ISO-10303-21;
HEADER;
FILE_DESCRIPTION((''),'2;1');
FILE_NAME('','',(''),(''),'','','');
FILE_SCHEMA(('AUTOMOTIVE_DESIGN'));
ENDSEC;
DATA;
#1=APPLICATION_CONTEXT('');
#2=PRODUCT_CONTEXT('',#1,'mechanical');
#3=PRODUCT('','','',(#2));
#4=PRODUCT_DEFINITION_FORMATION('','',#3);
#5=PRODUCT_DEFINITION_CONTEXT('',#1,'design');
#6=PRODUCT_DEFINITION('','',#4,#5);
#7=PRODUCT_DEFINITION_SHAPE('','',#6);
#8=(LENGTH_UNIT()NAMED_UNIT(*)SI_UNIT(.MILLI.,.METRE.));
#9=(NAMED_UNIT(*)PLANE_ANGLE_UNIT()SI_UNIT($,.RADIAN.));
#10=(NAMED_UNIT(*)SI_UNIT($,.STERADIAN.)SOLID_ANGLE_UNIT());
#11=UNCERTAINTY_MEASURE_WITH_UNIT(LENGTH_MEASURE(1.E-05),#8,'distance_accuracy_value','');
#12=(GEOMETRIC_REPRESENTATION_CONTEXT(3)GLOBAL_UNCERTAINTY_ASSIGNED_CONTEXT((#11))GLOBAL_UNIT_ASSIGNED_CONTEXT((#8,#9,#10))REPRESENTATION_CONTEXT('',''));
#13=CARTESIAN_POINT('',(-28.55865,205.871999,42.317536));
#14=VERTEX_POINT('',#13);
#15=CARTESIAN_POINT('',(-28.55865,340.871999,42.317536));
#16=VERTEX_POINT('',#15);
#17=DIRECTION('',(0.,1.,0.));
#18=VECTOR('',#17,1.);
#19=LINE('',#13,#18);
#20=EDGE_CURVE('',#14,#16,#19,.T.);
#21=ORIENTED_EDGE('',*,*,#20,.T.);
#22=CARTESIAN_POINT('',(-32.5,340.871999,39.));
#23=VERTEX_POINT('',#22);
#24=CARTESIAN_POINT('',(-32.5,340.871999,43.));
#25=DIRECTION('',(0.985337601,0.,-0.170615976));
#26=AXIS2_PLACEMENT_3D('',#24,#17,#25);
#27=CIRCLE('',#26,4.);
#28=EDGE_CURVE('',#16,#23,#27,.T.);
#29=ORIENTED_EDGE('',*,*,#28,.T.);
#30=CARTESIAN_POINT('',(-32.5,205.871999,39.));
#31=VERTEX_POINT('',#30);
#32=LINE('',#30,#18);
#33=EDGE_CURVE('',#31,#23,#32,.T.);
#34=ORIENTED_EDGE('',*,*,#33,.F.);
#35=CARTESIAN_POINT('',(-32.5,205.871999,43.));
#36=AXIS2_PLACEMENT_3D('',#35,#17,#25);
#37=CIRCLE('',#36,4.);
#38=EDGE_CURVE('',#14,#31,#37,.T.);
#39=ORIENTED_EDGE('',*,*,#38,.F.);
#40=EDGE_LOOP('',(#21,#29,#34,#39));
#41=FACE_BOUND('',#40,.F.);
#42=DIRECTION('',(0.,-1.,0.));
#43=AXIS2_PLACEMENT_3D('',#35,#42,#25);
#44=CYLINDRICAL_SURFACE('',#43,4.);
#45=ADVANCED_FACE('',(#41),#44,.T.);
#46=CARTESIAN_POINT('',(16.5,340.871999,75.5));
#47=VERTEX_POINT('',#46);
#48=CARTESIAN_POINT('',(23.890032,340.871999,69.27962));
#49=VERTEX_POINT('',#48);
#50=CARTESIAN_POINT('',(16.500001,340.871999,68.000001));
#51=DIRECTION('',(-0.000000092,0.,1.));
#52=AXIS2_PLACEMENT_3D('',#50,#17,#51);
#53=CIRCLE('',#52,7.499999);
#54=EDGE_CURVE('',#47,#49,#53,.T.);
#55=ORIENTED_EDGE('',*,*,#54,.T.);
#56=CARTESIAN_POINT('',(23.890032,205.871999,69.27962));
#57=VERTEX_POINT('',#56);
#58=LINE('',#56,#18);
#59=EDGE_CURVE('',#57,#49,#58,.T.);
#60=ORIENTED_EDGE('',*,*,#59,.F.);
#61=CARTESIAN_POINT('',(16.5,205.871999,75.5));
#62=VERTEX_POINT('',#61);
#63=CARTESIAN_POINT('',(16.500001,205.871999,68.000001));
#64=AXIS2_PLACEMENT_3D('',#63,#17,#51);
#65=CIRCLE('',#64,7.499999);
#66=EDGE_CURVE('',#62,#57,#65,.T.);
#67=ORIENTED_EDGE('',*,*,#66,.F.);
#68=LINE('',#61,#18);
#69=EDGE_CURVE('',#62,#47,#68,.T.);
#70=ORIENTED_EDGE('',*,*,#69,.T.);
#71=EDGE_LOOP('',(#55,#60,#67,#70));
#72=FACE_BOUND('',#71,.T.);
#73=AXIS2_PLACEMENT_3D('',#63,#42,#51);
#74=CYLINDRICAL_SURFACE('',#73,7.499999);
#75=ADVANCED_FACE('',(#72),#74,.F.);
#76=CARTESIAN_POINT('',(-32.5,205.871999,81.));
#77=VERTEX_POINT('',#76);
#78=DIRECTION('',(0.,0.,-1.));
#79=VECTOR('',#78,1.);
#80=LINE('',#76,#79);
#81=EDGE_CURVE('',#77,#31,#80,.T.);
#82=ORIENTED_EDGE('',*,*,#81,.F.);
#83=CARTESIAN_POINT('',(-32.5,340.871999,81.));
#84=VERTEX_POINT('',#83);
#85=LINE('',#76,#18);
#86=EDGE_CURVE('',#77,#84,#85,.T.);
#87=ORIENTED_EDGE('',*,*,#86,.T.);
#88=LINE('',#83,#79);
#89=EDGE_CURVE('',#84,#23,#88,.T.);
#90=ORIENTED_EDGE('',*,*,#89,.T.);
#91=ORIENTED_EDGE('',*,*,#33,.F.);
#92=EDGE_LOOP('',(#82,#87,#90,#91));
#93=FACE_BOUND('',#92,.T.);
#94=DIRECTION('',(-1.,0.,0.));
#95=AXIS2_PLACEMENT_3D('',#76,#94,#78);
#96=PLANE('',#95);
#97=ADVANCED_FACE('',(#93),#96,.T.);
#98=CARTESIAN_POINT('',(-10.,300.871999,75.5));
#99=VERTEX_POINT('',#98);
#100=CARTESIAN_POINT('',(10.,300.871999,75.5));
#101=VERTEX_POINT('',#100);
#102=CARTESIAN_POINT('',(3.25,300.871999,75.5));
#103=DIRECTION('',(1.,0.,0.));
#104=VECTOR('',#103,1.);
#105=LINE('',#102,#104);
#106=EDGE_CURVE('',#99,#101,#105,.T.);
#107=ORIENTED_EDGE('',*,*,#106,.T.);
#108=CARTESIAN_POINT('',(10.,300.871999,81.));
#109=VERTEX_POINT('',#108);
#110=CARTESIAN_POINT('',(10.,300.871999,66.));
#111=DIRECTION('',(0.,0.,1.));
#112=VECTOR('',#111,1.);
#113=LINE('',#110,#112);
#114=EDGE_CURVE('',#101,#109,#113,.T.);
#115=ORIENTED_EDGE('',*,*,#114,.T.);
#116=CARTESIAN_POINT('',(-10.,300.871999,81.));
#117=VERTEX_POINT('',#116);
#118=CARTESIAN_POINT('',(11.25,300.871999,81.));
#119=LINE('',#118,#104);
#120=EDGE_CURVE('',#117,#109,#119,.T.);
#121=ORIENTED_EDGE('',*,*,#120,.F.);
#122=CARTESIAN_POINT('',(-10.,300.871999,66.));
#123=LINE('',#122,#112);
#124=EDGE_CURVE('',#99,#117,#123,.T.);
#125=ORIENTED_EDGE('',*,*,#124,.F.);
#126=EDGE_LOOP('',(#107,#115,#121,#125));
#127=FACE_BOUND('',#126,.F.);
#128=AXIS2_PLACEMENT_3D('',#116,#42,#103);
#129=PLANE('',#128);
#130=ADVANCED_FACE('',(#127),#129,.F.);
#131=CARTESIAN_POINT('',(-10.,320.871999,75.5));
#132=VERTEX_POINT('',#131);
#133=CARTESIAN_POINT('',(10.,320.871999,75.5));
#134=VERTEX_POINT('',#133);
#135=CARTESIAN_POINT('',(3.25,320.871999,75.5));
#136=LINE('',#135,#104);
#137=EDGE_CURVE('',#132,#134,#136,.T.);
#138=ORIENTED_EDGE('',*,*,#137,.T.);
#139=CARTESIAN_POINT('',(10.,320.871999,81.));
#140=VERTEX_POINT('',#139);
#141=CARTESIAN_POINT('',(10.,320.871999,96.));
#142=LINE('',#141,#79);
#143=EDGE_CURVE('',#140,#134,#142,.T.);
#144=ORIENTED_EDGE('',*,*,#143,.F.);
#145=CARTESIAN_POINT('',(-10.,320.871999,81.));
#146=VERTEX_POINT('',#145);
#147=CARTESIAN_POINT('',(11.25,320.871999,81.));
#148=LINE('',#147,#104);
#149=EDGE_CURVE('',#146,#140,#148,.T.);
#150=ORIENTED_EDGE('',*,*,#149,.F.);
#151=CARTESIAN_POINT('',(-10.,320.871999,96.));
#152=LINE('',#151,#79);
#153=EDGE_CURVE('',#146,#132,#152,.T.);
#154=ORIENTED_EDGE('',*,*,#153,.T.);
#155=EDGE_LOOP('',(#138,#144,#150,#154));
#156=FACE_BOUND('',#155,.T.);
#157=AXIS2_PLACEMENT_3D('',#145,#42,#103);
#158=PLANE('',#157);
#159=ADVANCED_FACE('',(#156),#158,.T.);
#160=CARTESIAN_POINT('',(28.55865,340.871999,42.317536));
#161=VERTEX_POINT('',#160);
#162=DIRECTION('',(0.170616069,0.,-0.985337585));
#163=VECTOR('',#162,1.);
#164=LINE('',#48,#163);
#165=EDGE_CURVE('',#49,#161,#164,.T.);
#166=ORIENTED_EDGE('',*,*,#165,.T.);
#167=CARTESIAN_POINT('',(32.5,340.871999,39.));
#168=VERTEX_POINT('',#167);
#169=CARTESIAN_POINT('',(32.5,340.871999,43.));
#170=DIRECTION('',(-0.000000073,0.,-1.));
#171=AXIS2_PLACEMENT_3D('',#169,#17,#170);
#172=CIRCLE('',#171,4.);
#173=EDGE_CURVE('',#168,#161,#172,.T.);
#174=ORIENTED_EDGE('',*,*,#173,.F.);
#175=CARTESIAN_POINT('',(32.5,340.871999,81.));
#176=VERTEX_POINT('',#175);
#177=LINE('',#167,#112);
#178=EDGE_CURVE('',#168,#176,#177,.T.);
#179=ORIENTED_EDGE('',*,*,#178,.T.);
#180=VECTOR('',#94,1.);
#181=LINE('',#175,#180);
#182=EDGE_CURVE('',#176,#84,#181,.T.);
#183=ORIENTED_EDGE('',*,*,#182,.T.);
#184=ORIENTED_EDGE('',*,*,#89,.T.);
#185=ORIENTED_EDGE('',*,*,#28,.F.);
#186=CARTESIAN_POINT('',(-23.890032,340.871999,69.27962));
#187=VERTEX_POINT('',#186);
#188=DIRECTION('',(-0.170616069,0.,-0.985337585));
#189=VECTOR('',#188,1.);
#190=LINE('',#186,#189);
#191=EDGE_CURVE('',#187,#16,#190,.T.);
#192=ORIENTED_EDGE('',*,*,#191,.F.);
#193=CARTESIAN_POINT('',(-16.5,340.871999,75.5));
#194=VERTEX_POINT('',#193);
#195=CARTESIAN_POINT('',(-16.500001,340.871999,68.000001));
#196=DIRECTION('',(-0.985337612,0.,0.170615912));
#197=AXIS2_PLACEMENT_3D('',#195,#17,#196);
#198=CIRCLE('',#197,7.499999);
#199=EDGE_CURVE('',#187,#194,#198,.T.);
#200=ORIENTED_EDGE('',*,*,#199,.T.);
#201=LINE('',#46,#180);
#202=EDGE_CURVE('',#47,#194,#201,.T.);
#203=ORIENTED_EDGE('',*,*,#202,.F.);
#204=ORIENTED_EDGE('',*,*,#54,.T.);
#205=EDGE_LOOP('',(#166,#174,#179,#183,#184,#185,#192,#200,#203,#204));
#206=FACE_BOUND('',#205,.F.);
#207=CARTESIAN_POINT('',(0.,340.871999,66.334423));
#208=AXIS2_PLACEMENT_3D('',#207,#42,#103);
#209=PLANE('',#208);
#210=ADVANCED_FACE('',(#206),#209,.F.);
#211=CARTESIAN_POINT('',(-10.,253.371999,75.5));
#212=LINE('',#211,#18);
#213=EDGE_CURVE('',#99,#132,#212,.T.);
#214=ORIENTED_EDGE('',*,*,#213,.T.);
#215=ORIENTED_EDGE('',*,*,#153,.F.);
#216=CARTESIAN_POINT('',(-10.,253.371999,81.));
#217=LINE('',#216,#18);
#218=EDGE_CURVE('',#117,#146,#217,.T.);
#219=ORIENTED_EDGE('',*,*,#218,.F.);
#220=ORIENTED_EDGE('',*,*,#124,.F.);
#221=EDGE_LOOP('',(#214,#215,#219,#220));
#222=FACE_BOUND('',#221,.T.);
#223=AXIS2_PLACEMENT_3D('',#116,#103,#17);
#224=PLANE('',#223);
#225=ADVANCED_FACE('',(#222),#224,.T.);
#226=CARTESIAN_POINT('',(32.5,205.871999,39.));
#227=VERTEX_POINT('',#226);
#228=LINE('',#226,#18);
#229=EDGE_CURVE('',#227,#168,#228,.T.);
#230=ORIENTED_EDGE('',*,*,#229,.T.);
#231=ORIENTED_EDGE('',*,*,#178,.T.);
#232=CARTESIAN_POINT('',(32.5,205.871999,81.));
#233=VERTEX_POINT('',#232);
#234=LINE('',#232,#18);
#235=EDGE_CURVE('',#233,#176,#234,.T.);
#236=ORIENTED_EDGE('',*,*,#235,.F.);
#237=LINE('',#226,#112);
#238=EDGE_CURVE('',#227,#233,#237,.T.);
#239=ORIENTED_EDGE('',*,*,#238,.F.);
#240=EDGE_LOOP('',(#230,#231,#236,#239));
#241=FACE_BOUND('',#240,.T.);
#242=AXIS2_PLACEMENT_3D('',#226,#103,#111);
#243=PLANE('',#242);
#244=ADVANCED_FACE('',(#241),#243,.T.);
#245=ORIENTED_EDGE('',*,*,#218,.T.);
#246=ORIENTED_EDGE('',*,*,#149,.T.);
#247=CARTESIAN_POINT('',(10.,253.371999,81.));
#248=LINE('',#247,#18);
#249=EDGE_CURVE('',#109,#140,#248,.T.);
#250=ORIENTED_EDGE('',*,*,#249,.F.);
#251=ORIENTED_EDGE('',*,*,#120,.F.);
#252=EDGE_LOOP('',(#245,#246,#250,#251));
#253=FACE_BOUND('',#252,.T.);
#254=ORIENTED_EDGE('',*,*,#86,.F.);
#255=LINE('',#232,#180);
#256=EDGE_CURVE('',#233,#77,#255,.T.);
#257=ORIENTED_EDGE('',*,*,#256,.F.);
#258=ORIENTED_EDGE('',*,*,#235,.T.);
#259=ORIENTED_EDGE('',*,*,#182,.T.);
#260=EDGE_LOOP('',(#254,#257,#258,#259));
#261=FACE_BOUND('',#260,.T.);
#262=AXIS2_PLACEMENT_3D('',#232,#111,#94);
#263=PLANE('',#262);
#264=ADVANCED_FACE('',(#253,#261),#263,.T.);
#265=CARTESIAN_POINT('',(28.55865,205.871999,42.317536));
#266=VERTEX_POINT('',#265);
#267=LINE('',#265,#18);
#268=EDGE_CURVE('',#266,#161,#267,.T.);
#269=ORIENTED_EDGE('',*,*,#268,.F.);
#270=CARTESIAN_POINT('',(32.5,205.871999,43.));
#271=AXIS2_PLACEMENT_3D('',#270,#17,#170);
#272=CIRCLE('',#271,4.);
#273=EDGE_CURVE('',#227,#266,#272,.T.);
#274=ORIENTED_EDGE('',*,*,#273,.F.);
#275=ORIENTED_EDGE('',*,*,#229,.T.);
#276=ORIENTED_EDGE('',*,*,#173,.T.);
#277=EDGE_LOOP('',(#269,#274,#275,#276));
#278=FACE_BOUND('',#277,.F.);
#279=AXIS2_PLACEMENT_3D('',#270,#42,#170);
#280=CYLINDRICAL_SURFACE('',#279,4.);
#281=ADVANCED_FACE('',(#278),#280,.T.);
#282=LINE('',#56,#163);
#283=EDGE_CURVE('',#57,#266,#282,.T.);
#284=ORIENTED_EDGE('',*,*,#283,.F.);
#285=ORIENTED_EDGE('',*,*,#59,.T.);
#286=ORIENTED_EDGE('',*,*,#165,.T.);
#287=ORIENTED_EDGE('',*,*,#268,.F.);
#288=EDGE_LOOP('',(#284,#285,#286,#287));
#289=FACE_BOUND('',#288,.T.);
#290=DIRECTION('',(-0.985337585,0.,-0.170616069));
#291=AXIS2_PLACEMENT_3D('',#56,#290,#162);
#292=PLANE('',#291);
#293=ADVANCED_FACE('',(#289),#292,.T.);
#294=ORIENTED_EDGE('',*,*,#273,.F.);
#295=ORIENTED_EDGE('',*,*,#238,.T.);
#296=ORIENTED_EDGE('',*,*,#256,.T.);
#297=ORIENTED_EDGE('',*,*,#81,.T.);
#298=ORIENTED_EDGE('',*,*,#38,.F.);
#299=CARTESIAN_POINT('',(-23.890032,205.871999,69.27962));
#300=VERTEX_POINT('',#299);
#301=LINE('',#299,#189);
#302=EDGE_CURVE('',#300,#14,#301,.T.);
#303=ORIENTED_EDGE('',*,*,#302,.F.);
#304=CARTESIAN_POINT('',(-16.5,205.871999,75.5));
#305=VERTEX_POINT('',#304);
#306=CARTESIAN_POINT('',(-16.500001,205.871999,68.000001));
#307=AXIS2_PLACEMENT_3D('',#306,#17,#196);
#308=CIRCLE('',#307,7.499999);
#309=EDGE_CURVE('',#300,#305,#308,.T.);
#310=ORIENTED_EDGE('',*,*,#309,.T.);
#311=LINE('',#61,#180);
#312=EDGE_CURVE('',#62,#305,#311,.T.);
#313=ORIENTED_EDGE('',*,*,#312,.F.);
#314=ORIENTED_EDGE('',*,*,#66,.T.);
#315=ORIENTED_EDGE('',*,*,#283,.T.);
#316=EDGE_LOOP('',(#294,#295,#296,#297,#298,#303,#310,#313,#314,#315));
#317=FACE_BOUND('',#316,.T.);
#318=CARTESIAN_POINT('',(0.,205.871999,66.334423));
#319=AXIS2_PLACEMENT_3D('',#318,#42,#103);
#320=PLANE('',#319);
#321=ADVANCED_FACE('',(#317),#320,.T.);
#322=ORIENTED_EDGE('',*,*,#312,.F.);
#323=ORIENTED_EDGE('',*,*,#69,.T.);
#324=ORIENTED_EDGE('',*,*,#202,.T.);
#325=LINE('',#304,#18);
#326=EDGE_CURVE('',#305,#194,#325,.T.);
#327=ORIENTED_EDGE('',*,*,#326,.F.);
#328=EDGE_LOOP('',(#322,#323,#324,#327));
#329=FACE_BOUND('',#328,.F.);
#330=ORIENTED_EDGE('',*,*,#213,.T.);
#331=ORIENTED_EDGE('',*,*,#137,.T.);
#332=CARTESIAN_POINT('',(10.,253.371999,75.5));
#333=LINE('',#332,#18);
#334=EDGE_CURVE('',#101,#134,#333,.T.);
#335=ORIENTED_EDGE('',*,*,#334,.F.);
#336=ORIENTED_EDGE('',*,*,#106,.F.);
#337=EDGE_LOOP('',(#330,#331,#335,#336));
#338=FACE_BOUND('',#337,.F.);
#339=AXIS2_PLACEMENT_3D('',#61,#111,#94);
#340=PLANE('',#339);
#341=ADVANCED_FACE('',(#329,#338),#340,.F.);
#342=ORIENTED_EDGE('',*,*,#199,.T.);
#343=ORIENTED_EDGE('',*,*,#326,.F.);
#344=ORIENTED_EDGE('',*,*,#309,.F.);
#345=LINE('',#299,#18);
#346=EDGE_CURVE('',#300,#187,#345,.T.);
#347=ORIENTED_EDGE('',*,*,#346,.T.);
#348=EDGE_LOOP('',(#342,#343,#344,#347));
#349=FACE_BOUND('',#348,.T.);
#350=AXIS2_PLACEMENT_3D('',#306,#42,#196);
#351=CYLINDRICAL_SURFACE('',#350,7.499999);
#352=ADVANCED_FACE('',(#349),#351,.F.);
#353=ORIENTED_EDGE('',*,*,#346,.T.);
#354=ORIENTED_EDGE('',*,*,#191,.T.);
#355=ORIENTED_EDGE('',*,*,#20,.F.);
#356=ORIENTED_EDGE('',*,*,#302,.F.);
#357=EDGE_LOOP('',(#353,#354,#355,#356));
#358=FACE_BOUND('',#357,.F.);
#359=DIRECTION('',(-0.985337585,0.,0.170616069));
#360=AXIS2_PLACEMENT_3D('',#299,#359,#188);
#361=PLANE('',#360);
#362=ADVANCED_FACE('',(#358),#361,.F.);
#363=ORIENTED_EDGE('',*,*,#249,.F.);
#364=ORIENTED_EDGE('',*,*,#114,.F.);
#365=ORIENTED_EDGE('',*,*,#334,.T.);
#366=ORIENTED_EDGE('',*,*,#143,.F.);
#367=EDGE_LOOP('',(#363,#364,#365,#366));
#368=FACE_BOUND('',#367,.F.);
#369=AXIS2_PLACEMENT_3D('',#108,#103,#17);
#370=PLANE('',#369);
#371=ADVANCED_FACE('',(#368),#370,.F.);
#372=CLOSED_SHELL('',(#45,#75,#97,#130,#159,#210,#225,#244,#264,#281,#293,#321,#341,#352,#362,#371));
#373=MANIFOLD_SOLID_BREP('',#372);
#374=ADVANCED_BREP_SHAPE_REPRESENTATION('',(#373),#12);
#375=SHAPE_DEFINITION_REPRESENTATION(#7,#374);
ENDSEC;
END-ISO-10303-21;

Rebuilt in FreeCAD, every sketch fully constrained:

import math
import FreeCAD as App
import Part
import Sketcher

doc = App.newDocument("Part")
body = doc.addObject("PartDesign::Body", "Body")

sketch1 = body.newObject("Sketcher::SketchObject", "Sketch")
sketch1.AttachmentSupport = (doc.getObject("XY_Plane"), [""])
sketch1.MapMode = "FlatFace"
sketch1.AttachmentOffset = App.Placement(App.Vector(0, 0, 81), App.Rotation())
sketch1.addGeometry(Part.LineSegment(App.Vector(-10, 321, 0), App.Vector(-10, 301, 0)), False)
sketch1.addGeometry(Part.LineSegment(App.Vector(-10, 301, 0), App.Vector(10, 301, 0)), False)
sketch1.addGeometry(Part.LineSegment(App.Vector(10, 301, 0), App.Vector(10, 321, 0)), False)
sketch1.addGeometry(Part.LineSegment(App.Vector(10, 321, 0), App.Vector(-10, 321, 0)), False)
sketch1.addConstraint(Sketcher.Constraint("Coincident", 0, 2, 1, 1))
sketch1.addConstraint(Sketcher.Constraint("Coincident", 1, 2, 2, 1))
sketch1.addConstraint(Sketcher.Constraint("Coincident", 2, 2, 3, 1))
sketch1.addConstraint(Sketcher.Constraint("Coincident", 3, 2, 0, 1))
sketch1.addConstraint(Sketcher.Constraint("Vertical", 0))
sketch1.addConstraint(Sketcher.Constraint("Horizontal", 1))
sketch1.addConstraint(Sketcher.Constraint("Vertical", 2))
sketch1.addConstraint(Sketcher.Constraint("Horizontal", 3))
sketch1.addConstraint(Sketcher.Constraint("Equal", 3, 0))
sketch1.addConstraint(Sketcher.Constraint("DistanceX", 1, 1, 1, 2, 20.0))
sketch1.addConstraint(Sketcher.Constraint("DistanceX", 0, 2, -1, 1, 10.0))
sketch1.addConstraint(Sketcher.Constraint("DistanceY", -1, 1, 0, 2, 300.871999))
pad1 = body.newObject("PartDesign::Pad", "Pad")
pad1.Profile = sketch1
pad1.Length = 30
pad1.Midplane = True
body2 = doc.addObject("PartDesign::Body", "Body001")

sketch2 = body2.newObject("Sketcher::SketchObject", "Sketch001")
sketch2.AttachmentSupport = (doc.getObject("XZ_Plane001"), [""])
sketch2.MapMode = "FlatFace"
sketch2.AttachmentOffset = App.Placement(App.Vector(0, 0, -205.871999), App.Rotation())
sketch2.addGeometry(Part.LineSegment(App.Vector(32.5, 81, 0), App.Vector(32.5, 39, 0)), False)
sketch2.addGeometry(Part.ArcOfCircle(Part.Circle(App.Vector(32.5, 43, 0), App.Vector(0, 0, 1), 4), math.radians(-170), math.radians(-90)), False)
sketch2.addGeometry(Part.LineSegment(App.Vector(28.6, 42.3, 0), App.Vector(23.9, 69.3, 0)), False)
sketch2.addGeometry(Part.ArcOfCircle(Part.Circle(App.Vector(16.5, 68, 0), App.Vector(0, 0, 1), 7.5), math.radians(10), math.radians(90)), False)
sketch2.addGeometry(Part.LineSegment(App.Vector(16.5, 75.5, 0), App.Vector(-16.5, 75.5, 0)), False)
sketch2.addGeometry(Part.ArcOfCircle(Part.Circle(App.Vector(-16.5, 68, 0), App.Vector(0, 0, 1), 7.5), math.radians(90), math.radians(170)), False)
sketch2.addGeometry(Part.LineSegment(App.Vector(-23.9, 69.3, 0), App.Vector(-28.6, 42.3, 0)), False)
sketch2.addGeometry(Part.ArcOfCircle(Part.Circle(App.Vector(-32.5, 43, 0), App.Vector(0, 0, 1), 4), math.radians(-90), math.radians(-10)), False)
sketch2.addGeometry(Part.LineSegment(App.Vector(-32.5, 39, 0), App.Vector(-32.5, 81, 0)), False)
sketch2.addGeometry(Part.LineSegment(App.Vector(-32.5, 81, 0), App.Vector(32.5, 81, 0)), False)
sketch2.addConstraint(Sketcher.Constraint("Coincident", 0, 2, 1, 2))
sketch2.addConstraint(Sketcher.Constraint("Tangent", 1, 1, 2, 1))
sketch2.addConstraint(Sketcher.Constraint("Tangent", 2, 2, 3, 1))
sketch2.addConstraint(Sketcher.Constraint("Tangent", 3, 2, 4, 1))
sketch2.addConstraint(Sketcher.Constraint("Tangent", 4, 2, 5, 1))
sketch2.addConstraint(Sketcher.Constraint("Tangent", 5, 2, 6, 1))
sketch2.addConstraint(Sketcher.Constraint("Tangent", 6, 2, 7, 2))
sketch2.addConstraint(Sketcher.Constraint("Coincident", 7, 1, 8, 1))
sketch2.addConstraint(Sketcher.Constraint("Coincident", 8, 2, 9, 1))
sketch2.addConstraint(Sketcher.Constraint("Coincident", 9, 2, 0, 1))
sketch2.addConstraint(Sketcher.Constraint("Vertical", 0))
sketch2.addConstraint(Sketcher.Constraint("Horizontal", 4))
sketch2.addConstraint(Sketcher.Constraint("Vertical", 8))
sketch2.addConstraint(Sketcher.Constraint("Horizontal", 9))
sketch2.addConstraint(Sketcher.Constraint("Equal", 3, 5))
sketch2.addConstraint(Sketcher.Constraint("Equal", 1, 7))
sketch2.addConstraint(Sketcher.Constraint("Symmetric", 1, 3, 7, 3, -2))
sketch2.addConstraint(Sketcher.Constraint("Horizontal", 2, 2, 5, 2))
sketch2.addConstraint(Sketcher.Constraint("Vertical", 1, 3, 0, 2))
sketch2.addConstraint(Sketcher.Constraint("Radius", 1, 4.0))
sketch2.addConstraint(Sketcher.Constraint("Radius", 3, 7.499999))
sketch2.addConstraint(Sketcher.Constraint("DistanceX", 4, 2, 4, 1, 33.0))
sketch2.addConstraint(Sketcher.Constraint("DistanceX", 9, 1, 9, 2, 65.0))
sketch2.addConstraint(Sketcher.Constraint("DistanceY", 0, 2, 0, 1, 42.0))
sketch2.addConstraint(Sketcher.Constraint("DistanceY", -1, 1, 1, 3, 43.0))
sketch2.addConstraint(Sketcher.Constraint("DistanceY", -1, 1, 3, 3, 68.000001))
sketch2.addConstraint(Sketcher.Constraint("DistanceX", 3, 3, 1, 3, 16.0))
pad2 = body2.newObject("PartDesign::Pad", "Pad001")
pad2.Profile = sketch2
pad2.Length = 135
pad2.Reversed = True
doc.recompute()

boolean = body2.newObject("PartDesign::Boolean", "Boolean")
boolean.Type = "Cut"
boolean.addObjects([body])

doc.recompute()
